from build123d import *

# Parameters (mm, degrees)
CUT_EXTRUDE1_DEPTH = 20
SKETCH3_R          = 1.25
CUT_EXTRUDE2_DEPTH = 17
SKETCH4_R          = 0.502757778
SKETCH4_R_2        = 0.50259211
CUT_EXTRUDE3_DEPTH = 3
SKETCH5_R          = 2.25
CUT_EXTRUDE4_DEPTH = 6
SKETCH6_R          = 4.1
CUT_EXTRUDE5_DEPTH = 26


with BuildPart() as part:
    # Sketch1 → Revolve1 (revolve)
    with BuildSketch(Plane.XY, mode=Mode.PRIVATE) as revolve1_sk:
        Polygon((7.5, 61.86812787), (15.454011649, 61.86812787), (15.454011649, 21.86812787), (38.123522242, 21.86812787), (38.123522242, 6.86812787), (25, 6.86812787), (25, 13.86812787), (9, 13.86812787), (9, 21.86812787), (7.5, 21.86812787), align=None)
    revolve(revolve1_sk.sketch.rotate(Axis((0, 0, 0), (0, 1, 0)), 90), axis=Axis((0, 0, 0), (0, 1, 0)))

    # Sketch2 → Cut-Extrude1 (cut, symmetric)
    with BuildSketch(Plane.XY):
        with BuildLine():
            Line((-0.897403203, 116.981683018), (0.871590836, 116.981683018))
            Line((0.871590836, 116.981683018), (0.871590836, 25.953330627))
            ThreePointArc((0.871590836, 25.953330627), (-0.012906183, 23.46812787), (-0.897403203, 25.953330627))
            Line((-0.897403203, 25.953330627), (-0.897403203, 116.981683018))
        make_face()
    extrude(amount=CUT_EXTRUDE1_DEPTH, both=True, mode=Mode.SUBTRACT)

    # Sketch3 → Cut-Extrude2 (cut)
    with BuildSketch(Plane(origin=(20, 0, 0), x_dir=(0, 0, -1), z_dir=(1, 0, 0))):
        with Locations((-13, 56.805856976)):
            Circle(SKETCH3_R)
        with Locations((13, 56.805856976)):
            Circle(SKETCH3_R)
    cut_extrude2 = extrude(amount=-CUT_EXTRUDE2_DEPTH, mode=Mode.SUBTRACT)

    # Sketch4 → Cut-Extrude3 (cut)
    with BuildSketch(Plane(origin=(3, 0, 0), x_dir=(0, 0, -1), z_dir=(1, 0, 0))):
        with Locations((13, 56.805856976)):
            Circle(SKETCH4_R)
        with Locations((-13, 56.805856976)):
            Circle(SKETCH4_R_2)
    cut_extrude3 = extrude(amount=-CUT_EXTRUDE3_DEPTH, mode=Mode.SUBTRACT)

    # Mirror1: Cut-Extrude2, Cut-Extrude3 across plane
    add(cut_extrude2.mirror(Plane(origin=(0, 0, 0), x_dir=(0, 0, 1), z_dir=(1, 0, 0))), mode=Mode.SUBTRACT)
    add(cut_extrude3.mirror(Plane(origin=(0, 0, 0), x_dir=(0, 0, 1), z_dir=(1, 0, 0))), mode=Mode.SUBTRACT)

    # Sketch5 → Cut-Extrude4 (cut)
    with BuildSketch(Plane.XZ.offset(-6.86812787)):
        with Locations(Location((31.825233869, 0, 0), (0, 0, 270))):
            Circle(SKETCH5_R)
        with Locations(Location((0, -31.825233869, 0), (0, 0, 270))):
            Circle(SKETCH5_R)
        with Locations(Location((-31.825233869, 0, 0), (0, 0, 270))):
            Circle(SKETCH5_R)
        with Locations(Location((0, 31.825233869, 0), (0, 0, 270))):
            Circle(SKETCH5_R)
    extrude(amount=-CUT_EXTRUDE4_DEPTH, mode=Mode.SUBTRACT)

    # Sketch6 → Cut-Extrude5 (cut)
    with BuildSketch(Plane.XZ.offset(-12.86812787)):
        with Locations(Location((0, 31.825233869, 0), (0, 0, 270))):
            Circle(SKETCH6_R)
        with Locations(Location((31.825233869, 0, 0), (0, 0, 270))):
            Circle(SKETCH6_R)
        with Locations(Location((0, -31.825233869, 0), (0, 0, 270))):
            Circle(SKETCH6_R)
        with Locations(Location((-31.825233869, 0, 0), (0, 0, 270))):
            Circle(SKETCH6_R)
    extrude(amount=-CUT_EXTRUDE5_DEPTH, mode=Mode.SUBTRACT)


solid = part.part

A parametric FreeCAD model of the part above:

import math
import FreeCAD as App
import Part
import Sketcher
from FreeCAD import Vector


def add_polygon(sketch, points):
    """Adds a closed chain of lines whose ends are joined by coincident constraints."""
    first, n = sketch.GeometryCount, len(points)
    for a, b in zip(points, points[1:] + points[:1]):
        sketch.addGeometry(Part.LineSegment(App.Vector(*a, 0), App.Vector(*b, 0)), False)
    for i in range(n):
        sketch.addConstraint(Sketcher.Constraint("Coincident", first + i, 2, first + (i + 1) % n, 1))

doc = App.newDocument("Part")
body = doc.addObject("PartDesign::Body", "Body")

sketch1 = body.newObject("Sketcher::SketchObject", "Sketch")
sketch1.AttachmentSupport = (doc.getObject("XY_Plane"), [""])
sketch1.MapMode = "FlatFace"
add_polygon(sketch1, [(15.5, 61.9), (7.5, 61.9), (7.5, 21.9), (9, 21.9), (9, 13.9), (25, 13.9), (25, 6.9), (38.1, 6.9), (38.1, 21.9), (15.5, 21.9)])
sketch1.addConstraint([
    Sketcher.Constraint("Horizontal", 0),
    Sketcher.Constraint("Vertical", 1),
    Sketcher.Constraint("Horizontal", 2),
    Sketcher.Constraint("Vertical", 3),
    Sketcher.Constraint("Horizontal", 4),
    Sketcher.Constraint("Vertical", 5),
    Sketcher.Constraint("Horizontal", 6),
    Sketcher.Constraint("Vertical", 7),
    Sketcher.Constraint("Horizontal", 8),
    Sketcher.Constraint("Vertical", 9),
    Sketcher.Constraint("Horizontal", 2, 2, 7, 2),
    Sketcher.Constraint("DistanceX", 4, 1, 4, 2, 16.0),
    Sketcher.Constraint("DistanceY", 1, 2, 1, 1, 40.0),
    Sketcher.Constraint("DistanceY", 3, 2, 3, 1, 8.0),
    Sketcher.Constraint("DistanceY", 5, 2, 5, 1, 7.0),
    Sketcher.Constraint("DistanceX", 2, 1, 2, 2, 1.5),
    Sketcher.Constraint("DistanceX", -1, 1, 2, 2, 9.0),
    Sketcher.Constraint("DistanceX", 0, 2, 0, 1, 7.954012),
    Sketcher.Constraint("DistanceX", 8, 2, 8, 1, 22.669511),
    Sketcher.Constraint("DistanceY", -1, 1, 0, 2, 61.868128),
])
revolution = body.newObject("PartDesign::Revolution", "Revolution")
revolution.Profile = sketch1
revolution.ReferenceAxis = (sketch1, ["V_Axis"])
revolution.Angle = 360

sketch2 = body.newObject("Sketcher::SketchObject", "Sketch001")
sketch2.AttachmentSupport = (doc.getObject("XY_Plane"), [""])
sketch2.MapMode = "FlatFace"
sketch2.addGeometry([
    Part.LineSegment(Vector(0.9, 117, 0), Vector(-0.9, 117, 0)),
    Part.LineSegment(Vector(-0.9, 117, 0), Vector(-0.9, 26, 0)),
    Part.ArcOfCircle(Part.Circle(Vector(0, 24.9, 0), Vector(0, 0, 1), 1.4), math.radians(129), math.radians(411)),
    Part.LineSegment(Vector(0.9, 26, 0), Vector(0.9, 117, 0)),
], False)
sketch2.addConstraint([
    Sketcher.Constraint("Coincident", 0, 2, 1, 1),
    Sketcher.Constraint("Coincident", 1, 2, 2, 1),
    Sketcher.Constraint("Coincident", 2, 2, 3, 1),
    Sketcher.Constraint("Coincident", 3, 2, 0, 1),
    Sketcher.Constraint("Horizontal", 0),
    Sketcher.Constraint("Vertical", 1),
    Sketcher.Constraint("Vertical", 3),
    Sketcher.Constraint("Horizontal", 1, 2, 2, 2),
    Sketcher.Constraint("Radius", 2, 1.4),
    Sketcher.Constraint("DistanceX", 0, 2, 0, 1, 1.768994),
    Sketcher.Constraint("DistanceY", 1, 2, 1, 1, 91.028352),
    Sketcher.Constraint("DistanceY", -1, 1, 1, 2, 25.953331),
    Sketcher.Constraint("DistanceX", -1, 1, 2, 2, 0.871591),
])
pocket1 = body.newObject("PartDesign::Pocket", "Pocket")
pocket1.Profile = sketch2
pocket1.Length = 40
pocket1.Midplane = True

sketch3 = body.newObject("Sketcher::SketchObject", "Sketch002")
sketch3.AttachmentSupport = (doc.getObject("YZ_Plane"), [""])
sketch3.MapMode = "FlatFace"
sketch3.AttachmentOffset = App.Placement(Vector(0, 0, 20), App.Rotation())
sketch3.addGeometry([
    Part.Circle(Vector(56.8, 13, 0), Vector(0, 0, 1), 1.2),
    Part.Circle(Vector(56.8, -13, 0), Vector(0, 0, 1), 1.2),
], False)
sketch3.addConstraint([
    Sketcher.Constraint("Equal", 0, 1),
    Sketcher.Constraint("Symmetric", 0, 3, 1, 3, -1),
    Sketcher.Constraint("Diameter", 0, 2.5),
    Sketcher.Constraint("DistanceY", -1, 1, 0, 3, 13.0),
    Sketcher.Constraint("DistanceX", -1, 1, 0, 3, 56.805857),
])
pocket2 = body.newObject("PartDesign::Pocket", "Pocket001")
pocket2.Profile = sketch3
pocket2.Length = 17

sketch4 = body.newObject("Sketcher::SketchObject", "Sketch003")
sketch4.AttachmentSupport = (doc.getObject("YZ_Plane"), [""])
sketch4.MapMode = "FlatFace"
sketch4.AttachmentOffset = App.Placement(Vector(0, 0, 3), App.Rotation())
sketch4.addGeometry([
    Part.Circle(Vector(56.8, -13, 0), Vector(0, 0, 1), 0.5),
    Part.Circle(Vector(56.8, 13, 0), Vector(0, 0, 1), 0.5),
], False)
sketch4.addConstraint([
    Sketcher.Constraint("Symmetric", 0, 3, 1, 3, -1),
    Sketcher.Constraint("DistanceY", 0, 3, -1, 1, 13.0),
    Sketcher.Constraint("Diameter", 0, 1.005516),
    Sketcher.Constraint("Diameter", 1, 1.005184),
    Sketcher.Constraint("DistanceX", -1, 1, 0, 3, 56.805857),
])
pocket3 = body.newObject("PartDesign::Pocket", "Pocket002")
pocket3.Profile = sketch4
pocket3.Length = 3
doc.recompute()

mirrored = body.newObject("PartDesign::Mirrored", "Mirrored")
mirrored.Originals = [pocket2, pocket3]
mirrored.MirrorPlane = (doc.getObject("YZ_Plane"), [""])
body.Tip = mirrored

sketch5 = body.newObject("Sketcher::SketchObject", "Sketch004")
sketch5.AttachmentSupport = (doc.getObject("XZ_Plane"), [""])
sketch5.MapMode = "FlatFace"
sketch5.AttachmentOffset = App.Placement(Vector(0, 0, -6.868128), App.Rotation())
sketch5.addGeometry([
    Part.Circle(Vector(31.8, 0, 0), Vector(0, 0, 1), 2.2),
    Part.Circle(Vector(0, -31.8, 0), Vector(0, 0, 1), 2.2),
    Part.Circle(Vector(-31.8, 0, 0), Vector(0, 0, 1), 2.2),
    Part.Circle(Vector(0, 31.8, 0), Vector(0, 0, 1), 2.2),
], False)
sketch5.addConstraint([
    Sketcher.Constraint("Equal", 0, 1),
    Sketcher.Constraint("Equal", 1, 2),
    Sketcher.Constraint("Equal", 2, 3),
    Sketcher.Constraint("Symmetric", 0, 3, 2, 3, -1, 1),
    Sketcher.Constraint("Symmetric", 1, 3, 3, 3, -1, 1),
    Sketcher.Constraint("PointOnObject", 0, 3, -1),
    Sketcher.Constraint("PointOnObject", 1, 3, -2),
    Sketcher.Constraint("Diameter", 0, 4.5),
    Sketcher.Constraint("DistanceX", -1, 1, 0, 3, 31.825234),
    Sketcher.Constraint("DistanceY", 1, 3, -1, 1, 31.825234),
])
pocket4 = body.newObject("PartDesign::Pocket", "Pocket003")
pocket4.Profile = sketch5
pocket4.Length = 6

sketch6 = body.newObject("Sketcher::SketchObject", "Sketch005")
sketch6.AttachmentSupport = (doc.getObject("XZ_Plane"), [""])
sketch6.MapMode = "FlatFace"
sketch6.AttachmentOffset = App.Placement(Vector(0, 0, -12.868128), App.Rotation())
sketch6.addGeometry([
    Part.Circle(Vector(0, 31.8, 0), Vector(0, 0, 1), 4.1),
    Part.Circle(Vector(31.8, 0, 0), Vector(0, 0, 1), 4.1),
    Part.Circle(Vector(0, -31.8, 0), Vector(0, 0, 1), 4.1),
    Part.Circle(Vector(-31.8, 0, 0), Vector(0, 0, 1), 4.1),
], False)
sketch6.addConstraint([
    Sketcher.Constraint("Equal", 0, 1),
    Sketcher.Constraint("Equal", 1, 2),
    Sketcher.Constraint("Equal", 2, 3),
    Sketcher.Constraint("Symmetric", 0, 3, 2, 3, -1, 1),
    Sketcher.Constraint("Symmetric", 1, 3, 3, 3, -1, 1),
    Sketcher.Constraint("PointOnObject", 0, 3, -2),
    Sketcher.Constraint("PointOnObject", 1, 3, -1),
    Sketcher.Constraint("Diameter", 0, 8.2),
    Sketcher.Constraint("DistanceY", -1, 1, 0, 3, 31.825234),
    Sketcher.Constraint("DistanceX", -1, 1, 1, 3, 31.825234),
])
pocket5 = body.newObject("PartDesign::Pocket", "Pocket004")
pocket5.Profile = sketch6
pocket5.Length = 26

doc.recompute()
